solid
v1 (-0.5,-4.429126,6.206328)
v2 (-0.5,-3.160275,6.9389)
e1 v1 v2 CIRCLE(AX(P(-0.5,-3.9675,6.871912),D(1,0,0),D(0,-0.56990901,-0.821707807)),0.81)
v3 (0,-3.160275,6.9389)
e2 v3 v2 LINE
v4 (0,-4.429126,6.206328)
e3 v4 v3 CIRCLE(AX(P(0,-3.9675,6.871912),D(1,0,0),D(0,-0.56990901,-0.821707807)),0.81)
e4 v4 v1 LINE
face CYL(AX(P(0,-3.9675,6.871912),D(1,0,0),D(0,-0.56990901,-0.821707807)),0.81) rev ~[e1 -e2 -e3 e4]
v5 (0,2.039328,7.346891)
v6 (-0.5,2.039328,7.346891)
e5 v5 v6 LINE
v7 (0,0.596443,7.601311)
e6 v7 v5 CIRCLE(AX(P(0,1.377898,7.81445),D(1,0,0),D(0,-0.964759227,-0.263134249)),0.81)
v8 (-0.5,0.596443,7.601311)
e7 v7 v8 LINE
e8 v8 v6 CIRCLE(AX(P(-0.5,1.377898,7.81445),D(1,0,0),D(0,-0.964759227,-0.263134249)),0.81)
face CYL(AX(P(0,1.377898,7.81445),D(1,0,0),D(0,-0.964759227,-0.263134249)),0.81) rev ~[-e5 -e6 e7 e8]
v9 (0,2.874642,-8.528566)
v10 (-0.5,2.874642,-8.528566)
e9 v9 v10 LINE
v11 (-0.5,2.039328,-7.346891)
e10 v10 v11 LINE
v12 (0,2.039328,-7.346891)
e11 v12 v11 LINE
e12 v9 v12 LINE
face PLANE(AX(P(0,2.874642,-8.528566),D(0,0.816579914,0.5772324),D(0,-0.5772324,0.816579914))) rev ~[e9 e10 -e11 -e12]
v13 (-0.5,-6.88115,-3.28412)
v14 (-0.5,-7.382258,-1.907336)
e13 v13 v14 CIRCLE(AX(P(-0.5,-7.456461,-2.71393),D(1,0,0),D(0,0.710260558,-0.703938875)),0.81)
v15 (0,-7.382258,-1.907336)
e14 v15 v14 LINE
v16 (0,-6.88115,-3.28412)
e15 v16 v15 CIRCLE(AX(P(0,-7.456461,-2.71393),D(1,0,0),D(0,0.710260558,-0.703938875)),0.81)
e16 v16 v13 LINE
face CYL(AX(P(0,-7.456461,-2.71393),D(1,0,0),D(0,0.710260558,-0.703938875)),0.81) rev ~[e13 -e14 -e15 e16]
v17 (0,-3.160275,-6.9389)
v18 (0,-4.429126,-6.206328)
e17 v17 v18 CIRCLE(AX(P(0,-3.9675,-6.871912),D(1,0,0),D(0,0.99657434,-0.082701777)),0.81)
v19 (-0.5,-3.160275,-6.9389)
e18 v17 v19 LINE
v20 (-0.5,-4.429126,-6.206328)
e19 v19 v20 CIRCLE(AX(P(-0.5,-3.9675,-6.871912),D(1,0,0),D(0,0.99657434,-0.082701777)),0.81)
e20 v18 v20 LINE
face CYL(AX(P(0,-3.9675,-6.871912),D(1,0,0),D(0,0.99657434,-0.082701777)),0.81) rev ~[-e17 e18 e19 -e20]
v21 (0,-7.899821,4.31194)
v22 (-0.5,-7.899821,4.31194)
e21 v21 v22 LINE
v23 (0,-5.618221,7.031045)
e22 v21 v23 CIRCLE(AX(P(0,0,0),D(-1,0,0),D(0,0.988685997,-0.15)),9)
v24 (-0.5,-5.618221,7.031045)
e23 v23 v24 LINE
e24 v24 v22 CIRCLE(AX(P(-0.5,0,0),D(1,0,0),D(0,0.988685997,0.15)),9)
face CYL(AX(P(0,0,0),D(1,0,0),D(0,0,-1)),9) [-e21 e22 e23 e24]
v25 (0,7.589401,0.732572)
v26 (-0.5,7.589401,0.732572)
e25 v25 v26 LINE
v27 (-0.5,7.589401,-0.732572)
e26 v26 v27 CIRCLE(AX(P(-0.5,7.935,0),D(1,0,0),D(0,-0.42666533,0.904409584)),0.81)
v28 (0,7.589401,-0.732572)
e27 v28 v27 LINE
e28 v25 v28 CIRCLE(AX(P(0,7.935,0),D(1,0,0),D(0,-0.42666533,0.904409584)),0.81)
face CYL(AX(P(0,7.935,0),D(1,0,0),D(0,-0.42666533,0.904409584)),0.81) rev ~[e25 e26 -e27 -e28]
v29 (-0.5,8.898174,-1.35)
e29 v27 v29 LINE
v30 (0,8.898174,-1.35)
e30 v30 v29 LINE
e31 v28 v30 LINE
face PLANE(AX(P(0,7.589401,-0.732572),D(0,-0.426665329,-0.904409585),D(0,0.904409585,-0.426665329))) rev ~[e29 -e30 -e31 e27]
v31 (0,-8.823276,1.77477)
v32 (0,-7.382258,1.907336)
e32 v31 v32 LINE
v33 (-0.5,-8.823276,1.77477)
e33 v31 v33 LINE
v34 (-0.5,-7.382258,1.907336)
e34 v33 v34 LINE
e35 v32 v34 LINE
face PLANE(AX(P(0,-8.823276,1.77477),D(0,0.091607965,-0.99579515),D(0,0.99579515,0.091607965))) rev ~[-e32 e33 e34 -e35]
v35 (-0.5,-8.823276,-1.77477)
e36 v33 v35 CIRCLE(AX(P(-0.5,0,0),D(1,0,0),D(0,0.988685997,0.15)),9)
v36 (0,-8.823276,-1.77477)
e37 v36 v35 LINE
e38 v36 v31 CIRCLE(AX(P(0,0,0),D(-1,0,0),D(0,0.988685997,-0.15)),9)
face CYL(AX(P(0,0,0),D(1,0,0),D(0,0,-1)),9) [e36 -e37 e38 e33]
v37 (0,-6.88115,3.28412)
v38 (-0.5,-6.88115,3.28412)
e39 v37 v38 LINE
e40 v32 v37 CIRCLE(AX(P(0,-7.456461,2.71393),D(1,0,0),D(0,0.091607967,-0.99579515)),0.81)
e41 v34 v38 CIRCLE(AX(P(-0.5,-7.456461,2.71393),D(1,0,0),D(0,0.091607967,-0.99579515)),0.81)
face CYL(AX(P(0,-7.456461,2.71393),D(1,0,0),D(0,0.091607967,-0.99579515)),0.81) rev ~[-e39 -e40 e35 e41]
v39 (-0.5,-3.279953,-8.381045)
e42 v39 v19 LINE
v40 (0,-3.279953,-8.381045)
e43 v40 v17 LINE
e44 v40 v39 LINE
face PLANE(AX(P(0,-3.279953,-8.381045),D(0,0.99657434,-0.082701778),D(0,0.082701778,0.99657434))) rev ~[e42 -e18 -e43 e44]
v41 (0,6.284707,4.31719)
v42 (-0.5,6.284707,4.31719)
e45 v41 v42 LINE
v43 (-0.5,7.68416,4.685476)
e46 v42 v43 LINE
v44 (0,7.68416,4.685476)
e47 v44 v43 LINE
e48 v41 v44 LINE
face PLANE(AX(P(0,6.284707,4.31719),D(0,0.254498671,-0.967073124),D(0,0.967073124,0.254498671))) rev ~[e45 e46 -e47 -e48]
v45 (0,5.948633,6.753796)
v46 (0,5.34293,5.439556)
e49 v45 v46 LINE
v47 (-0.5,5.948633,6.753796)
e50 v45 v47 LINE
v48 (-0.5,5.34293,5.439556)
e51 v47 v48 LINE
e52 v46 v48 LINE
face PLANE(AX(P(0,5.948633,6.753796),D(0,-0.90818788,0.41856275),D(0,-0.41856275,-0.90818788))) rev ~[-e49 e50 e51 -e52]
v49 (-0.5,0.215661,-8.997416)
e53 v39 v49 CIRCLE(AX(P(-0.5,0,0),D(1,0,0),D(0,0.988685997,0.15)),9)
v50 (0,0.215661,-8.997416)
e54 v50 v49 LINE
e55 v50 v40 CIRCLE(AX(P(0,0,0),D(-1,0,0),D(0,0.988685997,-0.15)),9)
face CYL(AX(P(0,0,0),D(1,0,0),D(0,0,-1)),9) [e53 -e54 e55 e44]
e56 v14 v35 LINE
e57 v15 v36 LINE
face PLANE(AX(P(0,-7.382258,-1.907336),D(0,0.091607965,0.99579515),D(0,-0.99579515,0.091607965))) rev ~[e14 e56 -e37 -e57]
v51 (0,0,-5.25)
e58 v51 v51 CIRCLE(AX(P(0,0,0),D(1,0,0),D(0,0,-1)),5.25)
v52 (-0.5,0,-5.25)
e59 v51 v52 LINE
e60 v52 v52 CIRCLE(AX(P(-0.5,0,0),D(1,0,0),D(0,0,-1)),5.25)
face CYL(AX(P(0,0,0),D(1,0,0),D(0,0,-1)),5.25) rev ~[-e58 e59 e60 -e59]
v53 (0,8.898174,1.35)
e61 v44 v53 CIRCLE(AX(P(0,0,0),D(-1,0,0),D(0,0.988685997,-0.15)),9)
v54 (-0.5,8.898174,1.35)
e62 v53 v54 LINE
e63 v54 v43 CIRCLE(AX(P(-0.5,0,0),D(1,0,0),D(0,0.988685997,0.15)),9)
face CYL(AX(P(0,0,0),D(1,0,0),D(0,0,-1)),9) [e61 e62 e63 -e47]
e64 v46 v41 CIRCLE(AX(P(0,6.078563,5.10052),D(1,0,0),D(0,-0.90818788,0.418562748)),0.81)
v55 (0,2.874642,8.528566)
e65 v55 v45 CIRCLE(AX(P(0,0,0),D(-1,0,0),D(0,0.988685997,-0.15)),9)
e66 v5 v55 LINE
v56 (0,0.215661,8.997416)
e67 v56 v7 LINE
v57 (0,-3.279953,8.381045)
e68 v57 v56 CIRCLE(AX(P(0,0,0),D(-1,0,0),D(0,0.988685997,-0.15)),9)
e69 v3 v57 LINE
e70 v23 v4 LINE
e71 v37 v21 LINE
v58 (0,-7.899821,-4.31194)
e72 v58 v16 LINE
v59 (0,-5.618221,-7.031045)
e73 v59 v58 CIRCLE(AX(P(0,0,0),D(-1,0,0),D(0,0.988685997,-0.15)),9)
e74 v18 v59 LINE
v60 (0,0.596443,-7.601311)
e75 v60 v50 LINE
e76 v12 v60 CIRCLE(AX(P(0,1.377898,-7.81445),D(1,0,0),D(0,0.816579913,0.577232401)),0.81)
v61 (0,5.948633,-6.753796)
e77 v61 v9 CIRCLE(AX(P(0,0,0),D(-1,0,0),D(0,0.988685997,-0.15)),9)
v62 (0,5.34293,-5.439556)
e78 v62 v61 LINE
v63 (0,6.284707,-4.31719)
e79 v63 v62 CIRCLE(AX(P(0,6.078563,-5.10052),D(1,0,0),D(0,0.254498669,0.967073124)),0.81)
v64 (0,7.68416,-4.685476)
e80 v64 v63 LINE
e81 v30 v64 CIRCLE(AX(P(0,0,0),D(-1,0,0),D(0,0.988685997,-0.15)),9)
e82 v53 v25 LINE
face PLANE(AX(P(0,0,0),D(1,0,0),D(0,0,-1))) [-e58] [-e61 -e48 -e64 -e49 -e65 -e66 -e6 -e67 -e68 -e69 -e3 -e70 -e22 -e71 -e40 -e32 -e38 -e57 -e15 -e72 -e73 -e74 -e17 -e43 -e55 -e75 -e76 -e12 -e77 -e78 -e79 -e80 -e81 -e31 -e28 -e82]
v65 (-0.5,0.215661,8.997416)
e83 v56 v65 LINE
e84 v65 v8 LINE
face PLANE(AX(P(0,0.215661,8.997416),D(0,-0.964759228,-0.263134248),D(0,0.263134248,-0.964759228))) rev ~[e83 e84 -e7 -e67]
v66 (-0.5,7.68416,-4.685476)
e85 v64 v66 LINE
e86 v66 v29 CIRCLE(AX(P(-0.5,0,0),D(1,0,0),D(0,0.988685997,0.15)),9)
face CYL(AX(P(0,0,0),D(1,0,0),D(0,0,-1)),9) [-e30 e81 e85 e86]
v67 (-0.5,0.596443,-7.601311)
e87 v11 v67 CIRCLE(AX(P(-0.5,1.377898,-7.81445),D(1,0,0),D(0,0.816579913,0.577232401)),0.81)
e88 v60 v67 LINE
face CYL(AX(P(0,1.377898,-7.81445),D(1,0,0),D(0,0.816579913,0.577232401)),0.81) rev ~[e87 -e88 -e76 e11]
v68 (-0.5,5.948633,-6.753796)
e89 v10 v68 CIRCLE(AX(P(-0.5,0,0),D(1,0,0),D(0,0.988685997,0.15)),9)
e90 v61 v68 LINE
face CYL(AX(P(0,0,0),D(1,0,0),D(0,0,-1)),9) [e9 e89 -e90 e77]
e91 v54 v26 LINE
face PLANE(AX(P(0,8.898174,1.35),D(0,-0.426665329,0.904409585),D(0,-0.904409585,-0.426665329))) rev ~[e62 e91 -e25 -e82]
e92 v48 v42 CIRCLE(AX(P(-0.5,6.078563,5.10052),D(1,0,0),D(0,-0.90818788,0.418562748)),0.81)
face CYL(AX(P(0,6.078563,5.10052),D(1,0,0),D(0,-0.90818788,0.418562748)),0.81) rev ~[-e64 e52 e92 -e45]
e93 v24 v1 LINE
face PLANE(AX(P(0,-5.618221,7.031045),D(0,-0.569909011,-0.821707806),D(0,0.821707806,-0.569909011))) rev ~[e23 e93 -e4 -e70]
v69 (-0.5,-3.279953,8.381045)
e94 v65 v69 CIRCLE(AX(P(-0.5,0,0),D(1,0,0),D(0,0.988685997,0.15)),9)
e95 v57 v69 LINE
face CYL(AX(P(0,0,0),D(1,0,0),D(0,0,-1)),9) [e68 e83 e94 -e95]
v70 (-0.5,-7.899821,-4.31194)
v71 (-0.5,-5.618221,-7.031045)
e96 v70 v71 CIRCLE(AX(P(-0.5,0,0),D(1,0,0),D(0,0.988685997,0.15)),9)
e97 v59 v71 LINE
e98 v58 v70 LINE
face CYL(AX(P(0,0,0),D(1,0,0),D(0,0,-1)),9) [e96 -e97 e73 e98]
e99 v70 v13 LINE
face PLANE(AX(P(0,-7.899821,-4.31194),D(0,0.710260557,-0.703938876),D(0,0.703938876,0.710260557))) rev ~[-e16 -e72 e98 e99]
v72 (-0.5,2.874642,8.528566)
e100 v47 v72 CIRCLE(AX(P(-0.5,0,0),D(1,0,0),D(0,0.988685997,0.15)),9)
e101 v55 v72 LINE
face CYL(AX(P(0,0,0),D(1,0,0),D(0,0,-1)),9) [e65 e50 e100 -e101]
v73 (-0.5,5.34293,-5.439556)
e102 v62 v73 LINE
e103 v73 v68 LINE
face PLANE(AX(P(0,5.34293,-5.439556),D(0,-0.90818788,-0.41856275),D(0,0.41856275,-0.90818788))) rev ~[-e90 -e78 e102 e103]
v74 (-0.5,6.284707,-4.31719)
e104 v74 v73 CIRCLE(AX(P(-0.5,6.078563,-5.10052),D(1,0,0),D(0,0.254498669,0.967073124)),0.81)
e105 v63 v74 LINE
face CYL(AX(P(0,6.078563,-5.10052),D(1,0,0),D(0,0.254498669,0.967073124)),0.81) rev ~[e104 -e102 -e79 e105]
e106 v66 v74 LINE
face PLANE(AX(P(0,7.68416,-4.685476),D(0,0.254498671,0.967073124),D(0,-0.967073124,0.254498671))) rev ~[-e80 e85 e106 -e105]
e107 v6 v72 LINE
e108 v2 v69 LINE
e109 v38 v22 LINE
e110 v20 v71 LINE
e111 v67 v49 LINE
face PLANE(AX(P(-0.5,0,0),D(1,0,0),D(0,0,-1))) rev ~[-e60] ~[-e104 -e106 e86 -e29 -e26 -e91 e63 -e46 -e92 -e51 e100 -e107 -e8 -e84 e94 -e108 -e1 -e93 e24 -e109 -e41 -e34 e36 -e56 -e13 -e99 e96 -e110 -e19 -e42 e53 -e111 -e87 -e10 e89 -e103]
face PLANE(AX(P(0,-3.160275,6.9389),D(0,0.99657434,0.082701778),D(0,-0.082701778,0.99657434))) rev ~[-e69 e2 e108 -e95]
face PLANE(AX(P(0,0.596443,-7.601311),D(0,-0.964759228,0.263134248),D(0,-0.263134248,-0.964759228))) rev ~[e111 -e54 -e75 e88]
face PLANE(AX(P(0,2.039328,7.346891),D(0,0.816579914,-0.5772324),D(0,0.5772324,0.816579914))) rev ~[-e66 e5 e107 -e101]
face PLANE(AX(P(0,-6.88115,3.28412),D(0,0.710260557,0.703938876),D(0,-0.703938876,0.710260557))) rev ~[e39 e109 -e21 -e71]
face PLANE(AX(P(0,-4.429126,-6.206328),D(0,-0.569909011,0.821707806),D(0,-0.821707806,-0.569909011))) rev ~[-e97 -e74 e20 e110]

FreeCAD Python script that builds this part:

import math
import FreeCAD as App
import Part
import Sketcher
from FreeCAD import Vector

doc = App.newDocument("Part")
body = doc.addObject("PartDesign::Body", "Body")

# Sketch on YZ plane
sketch1 = body.newObject("Sketcher::SketchObject", "Sketch")
sketch1.AttachmentSupport = (doc.getObject("YZ_Plane"), [""])
sketch1.MapMode = "FlatFace"
sketch1.addGeometry([
    Part.Circle(Vector(0, 0, 0), Vector(0, 0, 1), 9),
    Part.Circle(Vector(0, 0, 0), Vector(0, 0, 1), 5),
], False)
sketch1.addConstraint([
    Sketcher.Constraint("Coincident", 0, 3, -1, 1),
    Sketcher.Constraint("Coincident", 1, 3, -1, 1),
    Sketcher.Constraint("Diameter", 0, 18.0),
    Sketcher.Constraint("Diameter", 1, 10.5),
])
pad1 = body.newObject("PartDesign::Pad", "Pad")
pad1.Profile = sketch1
pad1.Length = 0.5
pad1.Reversed = True

# Sketch on YZ plane
sketch2 = body.newObject("Sketcher::SketchObject", "Sketch001")
sketch2.AttachmentSupport = (doc.getObject("YZ_Plane"), [""])
sketch2.MapMode = "FlatFace"
sketch2.addGeometry([
    Part.LineSegment(Vector(7.6, -0.7, 0), Vector(8.9, -1.4, 0)),  # 0
    Part.LineSegment(Vector(8.9, -1.4, 0), Vector(9.7, -1.4, 0)),  # 1
    Part.LineSegment(Vector(9.7, -1.4, 0), Vector(9.7, 1.4, 0)),  # 2
    Part.LineSegment(Vector(9.7, 1.4, 0), Vector(8.9, 1.4, 0)),  # 3
    Part.LineSegment(Vector(8.9, 1.4, 0), Vector(7.6, 0.7, 0)),  # 4
    Part.ArcOfCircle(Part.Circle(Vector(7.9, 0, 0), Vector(0, 0, 1), 0.8), math.radians(115), math.radians(245)),  # 5
], False)
sketch2.addConstraint([
    Sketcher.Constraint("Coincident", 0, 2, 1, 1),
    Sketcher.Constraint("Coincident", 1, 2, 2, 1),
    Sketcher.Constraint("Coincident", 2, 2, 3, 1),
    Sketcher.Constraint("Coincident", 3, 2, 4, 1),
    Sketcher.Constraint("Tangent", 4, 2, 5, 1),
    Sketcher.Constraint("Tangent", 5, 2, 0, 1),
    Sketcher.Constraint("Horizontal", 1),
    Sketcher.Constraint("Vertical", 2),
    Sketcher.Constraint("Horizontal", 3),
    Sketcher.Constraint("Symmetric", 0, 2, 3, 2, -1),
    Sketcher.Constraint("PointOnObject", 5, 3, -1),
    Sketcher.Constraint("Radius", 5, 0.81),
    Sketcher.Constraint("DistanceY", 2, 1, 2, 2, 2.7),
    Sketcher.Constraint("DistanceX", 1, 1, 1, 2, 0.81),
    Sketcher.Constraint("DistanceX", -1, 1, 5, 3, 7.935),
    Sketcher.Constraint("Distance", 0, 1.447102),
])
pocket1 = body.newObject("PartDesign::Pocket", "Pocket")
pocket1.Profile = sketch2
pocket1.Type = "ThroughAll"
doc.recompute()

polarpattern = body.newObject("PartDesign::PolarPattern", "PolarPattern")
polarpattern.Originals = [pocket1]
polarpattern.Axis = (doc.getObject("X_Axis"), [""])
polarpattern.Angle = 360
polarpattern.Occurrences = 9
body.Tip = polarpattern

doc.recompute()
